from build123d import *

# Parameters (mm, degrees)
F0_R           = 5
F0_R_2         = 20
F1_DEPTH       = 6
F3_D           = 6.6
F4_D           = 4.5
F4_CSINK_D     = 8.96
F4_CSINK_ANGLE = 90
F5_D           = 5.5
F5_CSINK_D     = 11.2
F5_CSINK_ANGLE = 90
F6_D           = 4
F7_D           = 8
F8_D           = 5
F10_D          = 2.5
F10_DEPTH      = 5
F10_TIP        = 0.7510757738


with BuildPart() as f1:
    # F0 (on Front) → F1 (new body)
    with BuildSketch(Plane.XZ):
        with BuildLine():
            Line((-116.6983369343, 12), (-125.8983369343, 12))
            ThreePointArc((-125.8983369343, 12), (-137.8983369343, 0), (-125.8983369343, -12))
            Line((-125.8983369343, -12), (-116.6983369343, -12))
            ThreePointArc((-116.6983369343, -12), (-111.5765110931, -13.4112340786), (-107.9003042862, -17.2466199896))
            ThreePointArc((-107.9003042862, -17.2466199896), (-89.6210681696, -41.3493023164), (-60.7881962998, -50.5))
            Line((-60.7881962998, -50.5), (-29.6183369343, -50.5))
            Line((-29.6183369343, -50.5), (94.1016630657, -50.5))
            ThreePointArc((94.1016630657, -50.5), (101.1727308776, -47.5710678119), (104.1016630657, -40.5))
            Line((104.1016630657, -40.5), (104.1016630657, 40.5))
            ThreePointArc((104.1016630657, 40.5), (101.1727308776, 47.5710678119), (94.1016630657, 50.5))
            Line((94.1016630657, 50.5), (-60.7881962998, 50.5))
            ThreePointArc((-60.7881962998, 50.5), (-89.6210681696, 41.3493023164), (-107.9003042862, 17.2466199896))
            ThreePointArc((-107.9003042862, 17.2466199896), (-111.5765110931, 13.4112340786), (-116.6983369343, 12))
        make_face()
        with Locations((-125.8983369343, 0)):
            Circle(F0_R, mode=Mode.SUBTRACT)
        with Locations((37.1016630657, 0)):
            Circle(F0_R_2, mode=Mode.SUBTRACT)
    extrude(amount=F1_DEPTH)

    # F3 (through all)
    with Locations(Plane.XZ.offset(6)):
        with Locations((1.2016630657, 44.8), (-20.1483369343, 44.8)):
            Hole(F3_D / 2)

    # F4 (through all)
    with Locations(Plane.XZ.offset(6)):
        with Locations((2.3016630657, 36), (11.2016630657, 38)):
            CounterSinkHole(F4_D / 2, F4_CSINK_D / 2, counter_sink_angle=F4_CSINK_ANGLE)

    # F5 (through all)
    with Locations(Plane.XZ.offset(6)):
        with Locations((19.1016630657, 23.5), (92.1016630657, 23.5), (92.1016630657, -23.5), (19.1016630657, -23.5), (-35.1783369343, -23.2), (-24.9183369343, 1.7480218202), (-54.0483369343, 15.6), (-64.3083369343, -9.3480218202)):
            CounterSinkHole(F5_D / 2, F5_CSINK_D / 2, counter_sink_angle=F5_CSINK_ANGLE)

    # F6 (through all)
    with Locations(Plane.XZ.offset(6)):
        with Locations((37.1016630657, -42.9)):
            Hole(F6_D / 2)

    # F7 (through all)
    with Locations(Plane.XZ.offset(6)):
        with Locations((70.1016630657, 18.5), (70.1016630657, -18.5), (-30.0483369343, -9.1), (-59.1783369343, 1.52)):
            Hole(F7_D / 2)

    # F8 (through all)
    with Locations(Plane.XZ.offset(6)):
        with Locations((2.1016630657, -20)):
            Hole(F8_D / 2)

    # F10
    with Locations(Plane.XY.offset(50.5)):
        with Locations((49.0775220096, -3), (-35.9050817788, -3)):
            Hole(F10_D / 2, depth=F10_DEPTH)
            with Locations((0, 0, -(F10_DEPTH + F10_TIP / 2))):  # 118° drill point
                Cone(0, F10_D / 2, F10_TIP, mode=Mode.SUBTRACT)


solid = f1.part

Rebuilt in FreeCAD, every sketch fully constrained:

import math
import FreeCAD as App
import Part
import Sketcher
from FreeCAD import Vector

doc = App.newDocument("Part")
body = doc.addObject("PartDesign::Body", "Body")

sketch1 = body.newObject("Sketcher::SketchObject", "Sketch")
sketch1.AttachmentSupport = (doc.getObject("XZ_Plane"), [""])
sketch1.MapMode = "FlatFace"
sketch1.addGeometry([
    Part.LineSegment(Vector(-116.698337, 12, 0), Vector(-125.898337, 12, 0)),
    Part.ArcOfCircle(Part.Circle(Vector(-125.898337, 0, 0), Vector(0, 0, 1), 12), math.radians(90), math.radians(270)),
    Part.LineSegment(Vector(-125.898337, -12, 0), Vector(-116.698337, -12, 0)),
    Part.ArcOfCircle(Part.Circle(Vector(-116.698337, -22, 0), Vector(0, 0, 1), 10), math.radians(28.38136), math.radians(90)),
    Part.ArcOfCircle(Part.Circle(Vector(-60.788196, -0.5, 0), Vector(0, 0, 1), 50), math.radians(-160.431573), math.radians(-90)),
    Part.LineSegment(Vector(-60.788196, -50.5, 0), Vector(94.101663, -50.5, 0)),
    Part.ArcOfCircle(Part.Circle(Vector(94.101663, -40.5, 0), Vector(0, 0, 1), 10), math.radians(-90), math.radians(0)),
    Part.LineSegment(Vector(104.101663, -40.5, 0), Vector(104.101663, 40.5, 0)),
    Part.ArcOfCircle(Part.Circle(Vector(94.101663, 40.5, 0), Vector(0, 0, 1), 10), math.radians(0), math.radians(90)),
    Part.LineSegment(Vector(94.101663, 50.5, 0), Vector(-60.788196, 50.5, 0)),
    Part.ArcOfCircle(Part.Circle(Vector(-60.788196, 0.5, 0), Vector(0, 0, 1), 50), math.radians(90), math.radians(160.431573)),
    Part.ArcOfCircle(Part.Circle(Vector(-116.698337, 22, 0), Vector(0, 0, 1), 10), math.radians(-90), math.radians(-28.38136)),
    Part.Circle(Vector(-125.898337, 0, 0), Vector(0, 0, 1), 5),
    Part.Circle(Vector(37.101663, 0, 0), Vector(0, 0, 1), 20),
], False)
sketch1.addConstraint([
    Sketcher.Constraint("Tangent", 0, 2, 1, 1),
    Sketcher.Constraint("Tangent", 1, 2, 2, 1),
    Sketcher.Constraint("Tangent", 2, 2, 3, 2),
    Sketcher.Constraint("Coincident", 3, 1, 4, 1),
    Sketcher.Constraint("Tangent", 4, 2, 5, 1),
    Sketcher.Constraint("Tangent", 5, 2, 6, 1),
    Sketcher.Constraint("Tangent", 6, 2, 7, 1),
    Sketcher.Constraint("Tangent", 7, 2, 8, 1),
    Sketcher.Constraint("Tangent", 8, 2, 9, 1),
    Sketcher.Constraint("Tangent", 9, 2, 10, 1),
    Sketcher.Constraint("Coincident", 10, 2, 11, 2),
    Sketcher.Constraint("Tangent", 11, 1, 0, 1),
    Sketcher.Constraint("Horizontal", 0),
    Sketcher.Constraint("Horizontal", 2),
    Sketcher.Constraint("Horizontal", 5),
    Sketcher.Constraint("Vertical", 7),
    Sketcher.Constraint("Horizontal", 9),
    Sketcher.Constraint("Coincident", 12, 3, 1, 3),
    Sketcher.Constraint("Equal", 3, 6),
    Sketcher.Constraint("Equal", 6, 8),
    Sketcher.Constraint("Equal", 4, 10),
    Sketcher.Constraint("Equal", 8, 11),
    Sketcher.Constraint("Symmetric", 4, 3, 10, 3, -1),
    Sketcher.Constraint("Symmetric", 3, 3, 11, 3, -1),
    Sketcher.Constraint("PointOnObject", 13, 3, -1),
    Sketcher.Constraint("Diameter", 12, 10.0),
    Sketcher.Constraint("Diameter", 13, 40.0),
    Sketcher.Constraint("Radius", 1, 12.0),
    Sketcher.Constraint("Radius", 3, 10.0),
    Sketcher.Constraint("Radius", 4, 50.0),
    Sketcher.Constraint("DistanceY", 7, 1, 7, 2, 81.0),
    Sketcher.Constraint("DistanceX", 0, 2, 0, 1, 9.2),
    Sketcher.Constraint("DistanceX", 1, 3, 6, 3, 220.0),
    Sketcher.Constraint("DistanceX", 13, 3, 6, 3, 57.0),
    Sketcher.Constraint("DistanceX", 5, 1, 5, 2, 154.889859),
    Sketcher.Constraint("DistanceX", 1, 3, -1, 1, 125.898337),
])
pad1 = body.newObject("PartDesign::Pad", "Pad")
pad1.Profile = sketch1
pad1.Length = 6

sketch2 = body.newObject("Sketcher::SketchObject", "Sketch001")
sketch2.AttachmentSupport = (doc.getObject("XZ_Plane"), [""])
sketch2.MapMode = "FlatFace"
sketch2.AttachmentOffset = App.Placement(Vector(0, 0, 6), App.Rotation())
sketch2.addGeometry([
    Part.Circle(Vector(1.201663, 44.8, 0), Vector(0, 0, 1), 3.3),
    Part.Circle(Vector(-20.148337, 44.8, 0), Vector(0, 0, 1), 3.3),
], False)
sketch2.addConstraint([
    Sketcher.Constraint("Equal", 0, 1),
    Sketcher.Constraint("Horizontal", 0, 3, 1, 3),
    Sketcher.Constraint("Diameter", 0, 6.6),
    Sketcher.Constraint("DistanceY", -1, 1, 0, 3, 44.8),
    Sketcher.Constraint("DistanceX", 1, 3, 0, 3, 21.35),
    Sketcher.Constraint("DistanceX", -1, 1, 0, 3, 1.201663),
])
doc.recompute()
hole = body.newObject("PartDesign::Hole", "Hole")
hole.Profile = sketch2
hole.ThreadType = "None"
hole.Diameter = 6.6
hole.DepthType = "ThroughAll"

sketch3 = body.newObject("Sketcher::SketchObject", "Sketch002")
sketch3.AttachmentSupport = (doc.getObject("XZ_Plane"), [""])
sketch3.MapMode = "FlatFace"
sketch3.AttachmentOffset = App.Placement(Vector(0, 0, 6), App.Rotation())
sketch3.addGeometry([
    Part.Circle(Vector(2.301663, 36, 0), Vector(0, 0, 1), 2.25),
    Part.Circle(Vector(11.201663, 38, 0), Vector(0, 0, 1), 2.25),
], False)
sketch3.addConstraint([
    Sketcher.Constraint("Equal", 0, 1),
    Sketcher.Constraint("Diameter", 0, 4.5),
    Sketcher.Constraint("DistanceY", -1, 1, 0, 3, 36.0),
    Sketcher.Constraint("DistanceY", -1, 1, 1, 3, 38.0),
    Sketcher.Constraint("DistanceX", 0, 3, 1, 3, 8.9),
    Sketcher.Constraint("DistanceX", -1, 1, 0, 3, 2.301663),
])
doc.recompute()
hole2 = body.newObject("PartDesign::Hole", "Hole001")
hole2.Profile = sketch3
hole2.ThreadType = "None"
hole2.Diameter = 4.5
hole2.DepthType = "ThroughAll"
hole2.HoleCutType = "Countersink"
hole2.HoleCutDiameter = 8.96
hole2.HoleCutCountersinkAngle = 90

sketch4 = body.newObject("Sketcher::SketchObject", "Sketch003")
sketch4.AttachmentSupport = (doc.getObject("XZ_Plane"), [""])
sketch4.MapMode = "FlatFace"
sketch4.AttachmentOffset = App.Placement(Vector(0, 0, 6), App.Rotation())
sketch4.addGeometry([
    Part.Circle(Vector(19.101663, 23.5, 0), Vector(0, 0, 1), 2.75),
    Part.Circle(Vector(92.101663, 23.5, 0), Vector(0, 0, 1), 2.75),
    Part.Circle(Vector(92.101663, -23.5, 0), Vector(0, 0, 1), 2.75),
    Part.Circle(Vector(19.101663, -23.5, 0), Vector(0, 0, 1), 2.75),
    Part.Circle(Vector(-35.178337, -23.2, 0), Vector(0, 0, 1), 2.75),
    Part.Circle(Vector(-24.918337, 1.748022, 0), Vector(0, 0, 1), 2.75),
    Part.Circle(Vector(-54.048337, 15.6, 0), Vector(0, 0, 1), 2.75),
    Part.Circle(Vector(-64.308337, -9.348022, 0), Vector(0, 0, 1), 2.75),
], False)
sketch4.addConstraint([
    Sketcher.Constraint("Equal", 0, 1),
    Sketcher.Constraint("Equal", 1, 2),
    Sketcher.Constraint("Equal", 2, 3),
    Sketcher.Constraint("Equal", 3, 4),
    Sketcher.Constraint("Equal", 4, 5),
    Sketcher.Constraint("Equal", 5, 6),
    Sketcher.Constraint("Equal", 6, 7),
    Sketcher.Constraint("Symmetric", 1, 3, 2, 3, -1),
    Sketcher.Constraint("Symmetric", 0, 3, 3, 3, -1),
    Sketcher.Constraint("Horizontal", 0, 3, 1, 3),
    Sketcher.Constraint("Diameter", 0, 5.5),
    Sketcher.Constraint("DistanceX", 0, 3, 1, 3, 73.0),
    Sketcher.Constraint("DistanceY", 2, 3, 1, 3, 47.0),
    Sketcher.Constraint("DistanceY", 4, 3, -1, 1, 23.2),
    Sketcher.Constraint("DistanceY", -1, 1, 6, 3, 15.6),
    Sketcher.Constraint("DistanceX", 4, 3, 3, 3, 54.28),
    Sketcher.Constraint("DistanceX", 4, 3, 5, 3, 10.26),
    Sketcher.Constraint("DistanceX", 6, 3, 5, 3, 29.13),
    Sketcher.Constraint("DistanceX", 7, 3, 6, 3, 10.26),
    Sketcher.Constraint("DistanceY", -1, 1, 5, 3, 1.748022),
    Sketcher.Constraint("DistanceY", 7, 3, -1, 1, 9.348022),
    Sketcher.Constraint("DistanceX", -1, 1, 0, 3, 19.101663),
])
doc.recompute()
hole3 = body.newObject("PartDesign::Hole", "Hole002")
hole3.Profile = sketch4
hole3.ThreadType = "None"
hole3.Diameter = 5.5
hole3.DepthType = "ThroughAll"
hole3.HoleCutType = "Countersink"
hole3.HoleCutDiameter = 11.2
hole3.HoleCutCountersinkAngle = 90

sketch5 = body.newObject("Sketcher::SketchObject", "Sketch004")
sketch5.AttachmentSupport = (doc.getObject("XZ_Plane"), [""])
sketch5.MapMode = "FlatFace"
sketch5.AttachmentOffset = App.Placement(Vector(0, 0, 6), App.Rotation())
sketch5.addGeometry(Part.Circle(Vector(37.101663, -42.9, 0), Vector(0, 0, 1), 2), False)
sketch5.addConstraint([
    Sketcher.Constraint("Diameter", 0, 4.0),
    Sketcher.Constraint("DistanceY", 0, 3, -1, 1, 42.9),
    Sketcher.Constraint("DistanceX", -1, 1, 0, 3, 37.101663),
])
doc.recompute()
hole4 = body.newObject("PartDesign::Hole", "Hole003")
hole4.Profile = sketch5
hole4.ThreadType = "None"
hole4.Diameter = 4
hole4.DepthType = "ThroughAll"

sketch6 = body.newObject("Sketcher::SketchObject", "Sketch005")
sketch6.AttachmentSupport = (doc.getObject("XZ_Plane"), [""])
sketch6.MapMode = "FlatFace"
sketch6.AttachmentOffset = App.Placement(Vector(0, 0, 6), App.Rotation())
sketch6.addGeometry([
    Part.Circle(Vector(70.101663, 18.5, 0), Vector(0, 0, 1), 4),
    Part.Circle(Vector(70.101663, -18.5, 0), Vector(0, 0, 1), 4),
    Part.Circle(Vector(-30.048337, -9.1, 0), Vector(0, 0, 1), 4),
    Part.Circle(Vector(-59.178337, 1.52, 0), Vector(0, 0, 1), 4),
], False)
sketch6.addConstraint([
    Sketcher.Constraint("Equal", 0, 1),
    Sketcher.Constraint("Equal", 1, 2),
    Sketcher.Constraint("Equal", 2, 3),
    Sketcher.Constraint("Symmetric", 0, 3, 1, 3, -1),
    Sketcher.Constraint("Diameter", 0, 8.0),
    Sketcher.Constraint("DistanceY", 1, 3, 0, 3, 37.0),
    Sketcher.Constraint("DistanceY", 2, 3, -1, 1, 9.1),
    Sketcher.Constraint("DistanceY", -1, 1, 3, 3, 1.52),
    Sketcher.Constraint("DistanceX", 2, 3, 1, 3, 100.15),
    Sketcher.Constraint("DistanceX", 3, 3, 2, 3, 29.13),
    Sketcher.Constraint("DistanceX", -1, 1, 0, 3, 70.101663),
])
doc.recompute()
hole5 = body.newObject("PartDesign::Hole", "Hole004")
hole5.Profile = sketch6
hole5.ThreadType = "None"
hole5.Diameter = 8
hole5.DepthType = "ThroughAll"

sketch7 = body.newObject("Sketcher::SketchObject", "Sketch006")
sketch7.AttachmentSupport = (doc.getObject("XZ_Plane"), [""])
sketch7.MapMode = "FlatFace"
sketch7.AttachmentOffset = App.Placement(Vector(0, 0, 6), App.Rotation())
sketch7.addGeometry(Part.Circle(Vector(2.101663, -20, 0), Vector(0, 0, 1), 2.5), False)
sketch7.addConstraint([
    Sketcher.Constraint("Diameter", 0, 5.0),
    Sketcher.Constraint("DistanceY", 0, 3, -1, 1, 20.0),
    Sketcher.Constraint("DistanceX", -1, 1, 0, 3, 2.101663),
])
doc.recompute()
hole6 = body.newObject("PartDesign::Hole", "Hole005")
hole6.Profile = sketch7
hole6.ThreadType = "None"
hole6.Diameter = 5
hole6.DepthType = "ThroughAll"

sketch8 = body.newObject("Sketcher::SketchObject", "Sketch007")
sketch8.AttachmentSupport = (doc.getObject("XY_Plane"), [""])
sketch8.MapMode = "FlatFace"
sketch8.AttachmentOffset = App.Placement(Vector(0, 0, 50.5), App.Rotation())
sketch8.addGeometry([
    Part.Circle(Vector(49.077522, -3, 0), Vector(0, 0, 1), 1.25),
    Part.Circle(Vector(-35.905082, -3, 0), Vector(0, 0, 1), 1.25),
], False)
sketch8.addConstraint([
    Sketcher.Constraint("Equal", 0, 1),
    Sketcher.Constraint("Horizontal", 0, 3, 1, 3),
    Sketcher.Constraint("Diameter", 0, 2.5),
    Sketcher.Constraint("DistanceY", 0, 3, -1, 1, 3.0),
    Sketcher.Constraint("DistanceX", 1, 3, -1, 1, 35.905082),
    Sketcher.Constraint("DistanceX", -1, 1, 0, 3, 49.077522),
])
doc.recompute()
hole7 = body.newObject("PartDesign::Hole", "Hole006")
hole7.Profile = sketch8
hole7.ThreadType = "None"
hole7.Diameter = 2.5
hole7.DepthType = "Dimension"
hole7.Depth = 5
hole7.DrillPoint = "Angled"
hole7.DrillPointAngle = 118

doc.recompute()
